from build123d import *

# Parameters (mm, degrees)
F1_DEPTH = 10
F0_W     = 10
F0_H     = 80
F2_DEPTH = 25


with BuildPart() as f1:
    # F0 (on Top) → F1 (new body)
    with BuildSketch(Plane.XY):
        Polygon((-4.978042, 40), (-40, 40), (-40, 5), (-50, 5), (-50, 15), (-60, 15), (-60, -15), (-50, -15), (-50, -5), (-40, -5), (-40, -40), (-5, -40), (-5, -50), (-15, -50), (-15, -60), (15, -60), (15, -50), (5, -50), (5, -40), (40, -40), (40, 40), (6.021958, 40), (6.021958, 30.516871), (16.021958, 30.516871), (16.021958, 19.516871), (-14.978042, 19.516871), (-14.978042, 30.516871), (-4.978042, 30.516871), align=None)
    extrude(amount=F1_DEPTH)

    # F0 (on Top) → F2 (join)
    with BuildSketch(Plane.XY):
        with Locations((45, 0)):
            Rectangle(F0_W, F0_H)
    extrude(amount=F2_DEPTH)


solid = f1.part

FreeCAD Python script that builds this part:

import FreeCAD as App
import Part
import Sketcher


def add_polygon(sketch, points):
    """Adds a closed chain of lines whose ends are joined by coincident constraints."""
    first, n = sketch.GeometryCount, len(points)
    for a, b in zip(points, points[1:] + points[:1]):
        sketch.addGeometry(Part.LineSegment(App.Vector(*a, 0), App.Vector(*b, 0)), False)
    for i in range(n):
        sketch.addConstraint(Sketcher.Constraint("Coincident", first + i, 2, first + (i + 1) % n, 1))

doc = App.newDocument("Part")
body = doc.addObject("PartDesign::Body", "Body")

sketch1 = body.newObject("Sketcher::SketchObject", "Sketch")
sketch1.AttachmentSupport = (doc.getObject("XY_Plane"), [""])
sketch1.MapMode = "FlatFace"
add_polygon(sketch1, [(-5, 40), (-40, 40), (-40, 5), (-50, 5), (-50, 15), (-60, 15), (-60, -15), (-50, -15), (-50, -5), (-40, -5), (-40, -40), (-5, -40), (-5, -50), (-15, -50), (-15, -60), (15, -60), (15, -50), (5, -50), (5, -40), (40, -40), (40, 40), (6, 40), (6, 31), (16, 31), (16, 20), (-15, 20), (-15, 31), (-5, 31)])
sketch1.addConstraint([
    Sketcher.Constraint("Horizontal", 0),
    Sketcher.Constraint("Vertical", 1),
    Sketcher.Constraint("Horizontal", 2),
    Sketcher.Constraint("Vertical", 3),
    Sketcher.Constraint("Horizontal", 4),
    Sketcher.Constraint("Vertical", 5),
    Sketcher.Constraint("Horizontal", 6),
    Sketcher.Constraint("Vertical", 7),
    Sketcher.Constraint("Horizontal", 8),
    Sketcher.Constraint("Vertical", 9),
    Sketcher.Constraint("Horizontal", 10),
    Sketcher.Constraint("Vertical", 11),
    Sketcher.Constraint("Horizontal", 12),
    Sketcher.Constraint("Vertical", 13),
    Sketcher.Constraint("Horizontal", 14),
    Sketcher.Constraint("Vertical", 15),
    Sketcher.Constraint("Horizontal", 16),
    Sketcher.Constraint("Vertical", 17),
    Sketcher.Constraint("Horizontal", 18),
    Sketcher.Constraint("Vertical", 19),
    Sketcher.Constraint("Horizontal", 20),
    Sketcher.Constraint("Vertical", 21),
    Sketcher.Constraint("Horizontal", 22),
    Sketcher.Constraint("Vertical", 23),
    Sketcher.Constraint("Horizontal", 24),
    Sketcher.Constraint("Vertical", 25),
    Sketcher.Constraint("Horizontal", 26),
    Sketcher.Constraint("Vertical", 27),
    Sketcher.Constraint("Symmetric", 0, 2, 18, 2, -1, 1),
    Sketcher.Constraint("Symmetric", 9, 2, 19, 2, -1, 1),
    Sketcher.Constraint("Symmetric", 12, 2, 15, 2, -2),
    Sketcher.Constraint("Symmetric", 10, 2, 17, 2, -2),
    Sketcher.Constraint("Symmetric", 3, 2, 6, 2, -1),
    Sketcher.Constraint("Horizontal", 22, 2, 25, 2),
    Sketcher.Constraint("Equal", 2, 4),
    Sketcher.Constraint("Equal", 8, 12),
    Sketcher.Constraint("Equal", 16, 22),
    Sketcher.Constraint("Equal", 22, 26),
    Sketcher.Constraint("Equal", 18, 1),
    Sketcher.Constraint("Equal", 26, 3),
    Sketcher.Constraint("Equal", 14, 5),
    Sketcher.Constraint("Equal", 3, 7),
    Sketcher.Constraint("Equal", 7, 11),
    Sketcher.Constraint("Equal", 11, 13),
    Sketcher.Constraint("DistanceX", 2, 2, 2, 1, 10.0),
    Sketcher.Constraint("DistanceX", 10, 1, 10, 2, 35.0),
    Sketcher.Constraint("DistanceX", 14, 1, 14, 2, 30.0),
    Sketcher.Constraint("DistanceX", 24, 2, 24, 1, 31.0),
    Sketcher.Constraint("DistanceY", 23, 2, 23, 1, 11.0),
    Sketcher.Constraint("DistanceY", 21, 2, 21, 1, 9.483129),
    Sketcher.Constraint("DistanceX", 0, 2, 0, 1, 35.021958),
])
pad1 = body.newObject("PartDesign::Pad", "Pad")
pad1.Profile = sketch1
pad1.Length = 10

sketch2 = body.newObject("Sketcher::SketchObject", "Sketch001")
sketch2.AttachmentSupport = (doc.getObject("XY_Plane"), [""])
sketch2.MapMode = "FlatFace"
add_polygon(sketch2, [(40, 40), (40, -40), (50, -40), (50, 40)])
sketch2.addConstraint([
    Sketcher.Constraint("Vertical", 0),
    Sketcher.Constraint("Horizontal", 1),
    Sketcher.Constraint("Vertical", 2),
    Sketcher.Constraint("Horizontal", 3),
    Sketcher.Constraint("DistanceX", 1, 1, 1, 2, 10.0),
    Sketcher.Constraint("DistanceY", 0, 2, 0, 1, 80.0),
    Sketcher.Constraint("DistanceX", -1, 1, 0, 2, 40.0),
    Sketcher.Constraint("DistanceY", 0, 2, -1, 1, 40.0),
])
pad2 = body.newObject("PartDesign::Pad", "Pad001")
pad2.Profile = sketch2
pad2.Length = 25

doc.recompute()
